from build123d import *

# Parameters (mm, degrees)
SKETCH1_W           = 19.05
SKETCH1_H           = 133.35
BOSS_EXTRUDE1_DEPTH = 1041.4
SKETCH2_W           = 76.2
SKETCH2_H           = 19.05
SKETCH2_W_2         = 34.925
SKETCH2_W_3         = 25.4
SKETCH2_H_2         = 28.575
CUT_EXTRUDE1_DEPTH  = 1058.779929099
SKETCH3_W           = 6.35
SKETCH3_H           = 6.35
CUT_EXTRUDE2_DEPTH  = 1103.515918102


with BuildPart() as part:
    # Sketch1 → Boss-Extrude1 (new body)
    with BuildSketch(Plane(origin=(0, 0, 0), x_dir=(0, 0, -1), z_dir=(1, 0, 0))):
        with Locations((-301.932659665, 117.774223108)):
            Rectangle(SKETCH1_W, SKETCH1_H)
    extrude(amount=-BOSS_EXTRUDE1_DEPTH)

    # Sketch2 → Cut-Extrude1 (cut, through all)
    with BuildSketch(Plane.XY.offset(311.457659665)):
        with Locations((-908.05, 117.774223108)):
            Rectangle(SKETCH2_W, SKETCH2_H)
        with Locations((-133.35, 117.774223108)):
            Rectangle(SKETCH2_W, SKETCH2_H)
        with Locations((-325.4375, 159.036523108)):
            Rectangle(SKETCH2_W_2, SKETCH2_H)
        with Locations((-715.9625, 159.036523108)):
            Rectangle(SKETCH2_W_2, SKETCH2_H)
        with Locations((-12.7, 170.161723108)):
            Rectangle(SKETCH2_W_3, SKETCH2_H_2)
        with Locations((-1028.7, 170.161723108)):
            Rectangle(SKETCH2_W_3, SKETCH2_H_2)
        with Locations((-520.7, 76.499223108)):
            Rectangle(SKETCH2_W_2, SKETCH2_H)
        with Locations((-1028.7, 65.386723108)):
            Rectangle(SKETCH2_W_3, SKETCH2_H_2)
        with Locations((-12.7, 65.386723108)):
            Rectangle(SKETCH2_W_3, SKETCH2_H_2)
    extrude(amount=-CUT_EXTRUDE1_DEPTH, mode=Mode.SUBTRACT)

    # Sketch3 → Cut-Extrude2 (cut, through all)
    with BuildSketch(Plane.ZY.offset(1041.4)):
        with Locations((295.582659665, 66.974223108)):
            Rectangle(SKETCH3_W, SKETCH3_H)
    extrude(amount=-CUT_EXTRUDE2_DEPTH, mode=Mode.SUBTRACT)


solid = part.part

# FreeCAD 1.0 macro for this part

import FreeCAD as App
import Part
import Sketcher
from FreeCAD import Vector
Q = App.Units.Quantity


def add_polygon(sketch, points):
    """Adds a closed chain of lines whose ends are joined by coincident constraints."""
    first, n = sketch.GeometryCount, len(points)
    for a, b in zip(points, points[1:] + points[:1]):
        sketch.addGeometry(Part.LineSegment(App.Vector(*a, 0), App.Vector(*b, 0)), False)
    for i in range(n):
        sketch.addConstraint(Sketcher.Constraint("Coincident", first + i, 2, first + (i + 1) % n, 1))

doc = App.newDocument("Part")
body = doc.addObject("PartDesign::Body", "Body")

# Sketch on YZ plane
sketch1 = doc.addObject("Sketcher::SketchObject", "Sketch")
body.addObject(sketch1)
sketch1.AttachmentSupport = (doc.YZ_Plane, [""])
sketch1.MapMode = "FlatFace"
add_polygon(sketch1, [(184, 311), (51, 311), (51, 292), (184, 292)])  # lines 0-3
sketch1.addConstraint([
    Sketcher.Constraint("Horizontal", 0),
    Sketcher.Constraint("Vertical", 1),
    Sketcher.Constraint("Horizontal", 2),
    Sketcher.Constraint("Vertical", 3),
    Sketcher.Constraint("DistanceX", 0, 2, 0, 1, Q("5.25 in")),
    Sketcher.Constraint("DistanceY", 1, 2, 1, 1, Q("0.75 in")),
    Sketcher.Constraint("DistanceY", -1, 1, 0, 2, Q("311.45766 mm")),
    Sketcher.Constraint("DistanceX", -1, 1, 0, 2, Q("51.099223 mm")),
])
pad1 = doc.addObject("PartDesign::Pad", "Pad")
body.addObject(pad1)
pad1.Profile = sketch1
pad1.Length = Q("41 in")
pad1.Reversed = True

# Sketch on XY plane
sketch2 = doc.addObject("Sketcher::SketchObject", "Sketch001")
body.addObject(sketch2)
sketch2.AttachmentSupport = (doc.XY_Plane, [""])
sketch2.MapMode = "FlatFace"
sketch2.AttachmentOffset = App.Placement(Vector(0, 0, 311.45766), App.Rotation())
add_polygon(sketch2, [(-946, 127), (-946, 108), (-870, 108), (-870, 127)])  # lines 0-3
add_polygon(sketch2, [(-171, 127), (-171, 108), (-95, 108), (-95, 127)])  # lines 4-7
add_polygon(sketch2, [(-343, 169), (-343, 150), (-308, 150), (-308, 169)])  # lines 8-11
add_polygon(sketch2, [(-733, 169), (-733, 150), (-698, 150), (-698, 169)])  # lines 12-15
add_polygon(sketch2, [(-25, 184), (-25, 156), (0, 156), (0, 184)])  # lines 16-19
add_polygon(sketch2, [(-1041, 184), (-1041, 156), (-1016, 156), (-1016, 184)])  # lines 20-23
add_polygon(sketch2, [(-538, 86), (-538, 67), (-503, 67), (-503, 86)])  # lines 24-27
add_polygon(sketch2, [(-1041, 80), (-1041, 51), (-1016, 51), (-1016, 80)])  # lines 28-31
add_polygon(sketch2, [(-25, 80), (-25, 51), (0, 51), (0, 80)])  # lines 32-35
sketch2.addConstraint([
    Sketcher.Constraint("Vertical", 0),
    Sketcher.Constraint("Horizontal", 1),
    Sketcher.Constraint("Vertical", 2),
    Sketcher.Constraint("Horizontal", 3),
    Sketcher.Constraint("Vertical", 4),
    Sketcher.Constraint("Horizontal", 5),
    Sketcher.Constraint("Vertical", 6),
    Sketcher.Constraint("Horizontal", 7),
    Sketcher.Constraint("Vertical", 8),
    Sketcher.Constraint("Horizontal", 9),
    Sketcher.Constraint("Vertical", 10),
    Sketcher.Constraint("Horizontal", 11),
    Sketcher.Constraint("Vertical", 12),
    Sketcher.Constraint("Horizontal", 13),
    Sketcher.Constraint("Vertical", 14),
    Sketcher.Constraint("Horizontal", 15),
    Sketcher.Constraint("Vertical", 16),
    Sketcher.Constraint("Horizontal", 17),
    Sketcher.Constraint("Vertical", 18),
    Sketcher.Constraint("Horizontal", 19),
    Sketcher.Constraint("Vertical", 20),
    Sketcher.Constraint("Horizontal", 21),
    Sketcher.Constraint("Vertical", 22),
    Sketcher.Constraint("Horizontal", 23),
    Sketcher.Constraint("Vertical", 24),
    Sketcher.Constraint("Horizontal", 25),
    Sketcher.Constraint("Vertical", 26),
    Sketcher.Constraint("Horizontal", 27),
    Sketcher.Constraint("Vertical", 28),
    Sketcher.Constraint("Horizontal", 29),
    Sketcher.Constraint("Vertical", 30),
    Sketcher.Constraint("Horizontal", 31),
    Sketcher.Constraint("Vertical", 32),
    Sketcher.Constraint("Horizontal", 33),
    Sketcher.Constraint("Vertical", 34),
    Sketcher.Constraint("Horizontal", 35),
    Sketcher.Constraint("PointOnObject", 17, 2, -2),
    Sketcher.Constraint("PointOnObject", 33, 2, -2),
    Sketcher.Constraint("Horizontal", 1, 2, 4, 2),
    Sketcher.Constraint("Horizontal", 3, 2, 6, 2),
    Sketcher.Constraint("Horizontal", 9, 2, 12, 2),
    Sketcher.Constraint("Horizontal", 11, 2, 14, 2),
    Sketcher.Constraint("Horizontal", 17, 2, 20, 2),
    Sketcher.Constraint("Horizontal", 19, 2, 22, 2),
    Sketcher.Constraint("Horizontal", 29, 2, 32, 2),
    Sketcher.Constraint("Horizontal", 31, 2, 34, 2),
    Sketcher.Constraint("Vertical", 23, 2, 28, 2),
    Sketcher.Constraint("Vertical", 22, 2, 29, 2),
    Sketcher.Constraint("Vertical", 19, 2, 32, 2),
    Sketcher.Constraint("Equal", 3, 5),
    Sketcher.Constraint("Equal", 11, 13),
    Sketcher.Constraint("Equal", 19, 21),
    Sketcher.Constraint("Equal", 15, 25),
    Sketcher.Constraint("Equal", 6, 8),
    Sketcher.Constraint("Equal", 14, 24),
    Sketcher.Constraint("Equal", 22, 28),
    Sketcher.Constraint("DistanceX", 1, 1, 1, 2, Q("3 in")),
    Sketcher.Constraint("DistanceX", 17, 1, 17, 2, Q("1 in")),
    Sketcher.Constraint("DistanceX", 20, 2, -1, 1, Q("41 in")),
    Sketcher.Constraint("DistanceY", 5, 2, 18, 2, Q("3 in")),
    Sketcher.Constraint("DistanceY", 28, 2, 3, 2, Q("3 in")),
    Sketcher.Constraint("DistanceY", 30, 2, 21, 2, Q("3 in")),
    Sketcher.Constraint("DistanceY", 0, 2, 0, 1, Q("0.75 in")),
    Sketcher.Constraint("DistanceX", 8, 2, -1, 1, Q("13.5 in")),
    Sketcher.Constraint("DistanceX", 13, 2, -1, 1, Q("27.5 in")),
    Sketcher.Constraint("DistanceX", 1, 2, 4, 2, Q("27.5 in")),
    Sketcher.Constraint("DistanceX", 9, 1, 9, 2, Q("1.375 in")),
    Sketcher.Constraint("DistanceX", 0, 2, -1, 1, Q("37.25 in")),
    Sketcher.Constraint("DistanceX", 24, 2, -1, 1, Q("21.1875 in")),
    Sketcher.Constraint("DistanceY", 7, 2, 8, 2, Q("0.8745 in")),
    Sketcher.Constraint("DistanceY", 24, 2, 13, 2, Q("3.2495 in")),
    Sketcher.Constraint("DistanceY", -1, 1, 0, 2, Q("108.249223 mm")),
])
pocket1 = doc.addObject("PartDesign::Pocket", "Pocket")
body.addObject(pocket1)
pocket1.Profile = sketch2
pocket1.Type = "ThroughAll"

# Sketch on YZ plane
sketch3 = doc.addObject("Sketcher::SketchObject", "Sketch002")
body.addObject(sketch3)
sketch3.AttachmentSupport = (doc.YZ_Plane, [""])
sketch3.MapMode = "FlatFace"
sketch3.AttachmentOffset = App.Placement(Vector(0, 0, -41 * 25.4), App.Rotation())
add_polygon(sketch3, [(70, 292), (64, 292), (64, 299), (70, 299)])  # lines 0-3
sketch3.addConstraint([
    Sketcher.Constraint("Horizontal", 0),
    Sketcher.Constraint("Vertical", 1),
    Sketcher.Constraint("Horizontal", 2),
    Sketcher.Constraint("Vertical", 3),
    Sketcher.Constraint("Equal", 2, 1),
    Sketcher.Constraint("DistanceX", 0, 2, 0, 1, Q("0.25 in")),
    Sketcher.Constraint("DistanceY", -1, 1, 0, 2, Q("292.40766 mm")),
    Sketcher.Constraint("DistanceX", -1, 1, 0, 2, Q("63.799223 mm")),
])
pocket2 = doc.addObject("PartDesign::Pocket", "Pocket001")
body.addObject(pocket2)
pocket2.Profile = sketch3
pocket2.Type = "ThroughAll"
pocket2.Reversed = True

doc.recompute()
